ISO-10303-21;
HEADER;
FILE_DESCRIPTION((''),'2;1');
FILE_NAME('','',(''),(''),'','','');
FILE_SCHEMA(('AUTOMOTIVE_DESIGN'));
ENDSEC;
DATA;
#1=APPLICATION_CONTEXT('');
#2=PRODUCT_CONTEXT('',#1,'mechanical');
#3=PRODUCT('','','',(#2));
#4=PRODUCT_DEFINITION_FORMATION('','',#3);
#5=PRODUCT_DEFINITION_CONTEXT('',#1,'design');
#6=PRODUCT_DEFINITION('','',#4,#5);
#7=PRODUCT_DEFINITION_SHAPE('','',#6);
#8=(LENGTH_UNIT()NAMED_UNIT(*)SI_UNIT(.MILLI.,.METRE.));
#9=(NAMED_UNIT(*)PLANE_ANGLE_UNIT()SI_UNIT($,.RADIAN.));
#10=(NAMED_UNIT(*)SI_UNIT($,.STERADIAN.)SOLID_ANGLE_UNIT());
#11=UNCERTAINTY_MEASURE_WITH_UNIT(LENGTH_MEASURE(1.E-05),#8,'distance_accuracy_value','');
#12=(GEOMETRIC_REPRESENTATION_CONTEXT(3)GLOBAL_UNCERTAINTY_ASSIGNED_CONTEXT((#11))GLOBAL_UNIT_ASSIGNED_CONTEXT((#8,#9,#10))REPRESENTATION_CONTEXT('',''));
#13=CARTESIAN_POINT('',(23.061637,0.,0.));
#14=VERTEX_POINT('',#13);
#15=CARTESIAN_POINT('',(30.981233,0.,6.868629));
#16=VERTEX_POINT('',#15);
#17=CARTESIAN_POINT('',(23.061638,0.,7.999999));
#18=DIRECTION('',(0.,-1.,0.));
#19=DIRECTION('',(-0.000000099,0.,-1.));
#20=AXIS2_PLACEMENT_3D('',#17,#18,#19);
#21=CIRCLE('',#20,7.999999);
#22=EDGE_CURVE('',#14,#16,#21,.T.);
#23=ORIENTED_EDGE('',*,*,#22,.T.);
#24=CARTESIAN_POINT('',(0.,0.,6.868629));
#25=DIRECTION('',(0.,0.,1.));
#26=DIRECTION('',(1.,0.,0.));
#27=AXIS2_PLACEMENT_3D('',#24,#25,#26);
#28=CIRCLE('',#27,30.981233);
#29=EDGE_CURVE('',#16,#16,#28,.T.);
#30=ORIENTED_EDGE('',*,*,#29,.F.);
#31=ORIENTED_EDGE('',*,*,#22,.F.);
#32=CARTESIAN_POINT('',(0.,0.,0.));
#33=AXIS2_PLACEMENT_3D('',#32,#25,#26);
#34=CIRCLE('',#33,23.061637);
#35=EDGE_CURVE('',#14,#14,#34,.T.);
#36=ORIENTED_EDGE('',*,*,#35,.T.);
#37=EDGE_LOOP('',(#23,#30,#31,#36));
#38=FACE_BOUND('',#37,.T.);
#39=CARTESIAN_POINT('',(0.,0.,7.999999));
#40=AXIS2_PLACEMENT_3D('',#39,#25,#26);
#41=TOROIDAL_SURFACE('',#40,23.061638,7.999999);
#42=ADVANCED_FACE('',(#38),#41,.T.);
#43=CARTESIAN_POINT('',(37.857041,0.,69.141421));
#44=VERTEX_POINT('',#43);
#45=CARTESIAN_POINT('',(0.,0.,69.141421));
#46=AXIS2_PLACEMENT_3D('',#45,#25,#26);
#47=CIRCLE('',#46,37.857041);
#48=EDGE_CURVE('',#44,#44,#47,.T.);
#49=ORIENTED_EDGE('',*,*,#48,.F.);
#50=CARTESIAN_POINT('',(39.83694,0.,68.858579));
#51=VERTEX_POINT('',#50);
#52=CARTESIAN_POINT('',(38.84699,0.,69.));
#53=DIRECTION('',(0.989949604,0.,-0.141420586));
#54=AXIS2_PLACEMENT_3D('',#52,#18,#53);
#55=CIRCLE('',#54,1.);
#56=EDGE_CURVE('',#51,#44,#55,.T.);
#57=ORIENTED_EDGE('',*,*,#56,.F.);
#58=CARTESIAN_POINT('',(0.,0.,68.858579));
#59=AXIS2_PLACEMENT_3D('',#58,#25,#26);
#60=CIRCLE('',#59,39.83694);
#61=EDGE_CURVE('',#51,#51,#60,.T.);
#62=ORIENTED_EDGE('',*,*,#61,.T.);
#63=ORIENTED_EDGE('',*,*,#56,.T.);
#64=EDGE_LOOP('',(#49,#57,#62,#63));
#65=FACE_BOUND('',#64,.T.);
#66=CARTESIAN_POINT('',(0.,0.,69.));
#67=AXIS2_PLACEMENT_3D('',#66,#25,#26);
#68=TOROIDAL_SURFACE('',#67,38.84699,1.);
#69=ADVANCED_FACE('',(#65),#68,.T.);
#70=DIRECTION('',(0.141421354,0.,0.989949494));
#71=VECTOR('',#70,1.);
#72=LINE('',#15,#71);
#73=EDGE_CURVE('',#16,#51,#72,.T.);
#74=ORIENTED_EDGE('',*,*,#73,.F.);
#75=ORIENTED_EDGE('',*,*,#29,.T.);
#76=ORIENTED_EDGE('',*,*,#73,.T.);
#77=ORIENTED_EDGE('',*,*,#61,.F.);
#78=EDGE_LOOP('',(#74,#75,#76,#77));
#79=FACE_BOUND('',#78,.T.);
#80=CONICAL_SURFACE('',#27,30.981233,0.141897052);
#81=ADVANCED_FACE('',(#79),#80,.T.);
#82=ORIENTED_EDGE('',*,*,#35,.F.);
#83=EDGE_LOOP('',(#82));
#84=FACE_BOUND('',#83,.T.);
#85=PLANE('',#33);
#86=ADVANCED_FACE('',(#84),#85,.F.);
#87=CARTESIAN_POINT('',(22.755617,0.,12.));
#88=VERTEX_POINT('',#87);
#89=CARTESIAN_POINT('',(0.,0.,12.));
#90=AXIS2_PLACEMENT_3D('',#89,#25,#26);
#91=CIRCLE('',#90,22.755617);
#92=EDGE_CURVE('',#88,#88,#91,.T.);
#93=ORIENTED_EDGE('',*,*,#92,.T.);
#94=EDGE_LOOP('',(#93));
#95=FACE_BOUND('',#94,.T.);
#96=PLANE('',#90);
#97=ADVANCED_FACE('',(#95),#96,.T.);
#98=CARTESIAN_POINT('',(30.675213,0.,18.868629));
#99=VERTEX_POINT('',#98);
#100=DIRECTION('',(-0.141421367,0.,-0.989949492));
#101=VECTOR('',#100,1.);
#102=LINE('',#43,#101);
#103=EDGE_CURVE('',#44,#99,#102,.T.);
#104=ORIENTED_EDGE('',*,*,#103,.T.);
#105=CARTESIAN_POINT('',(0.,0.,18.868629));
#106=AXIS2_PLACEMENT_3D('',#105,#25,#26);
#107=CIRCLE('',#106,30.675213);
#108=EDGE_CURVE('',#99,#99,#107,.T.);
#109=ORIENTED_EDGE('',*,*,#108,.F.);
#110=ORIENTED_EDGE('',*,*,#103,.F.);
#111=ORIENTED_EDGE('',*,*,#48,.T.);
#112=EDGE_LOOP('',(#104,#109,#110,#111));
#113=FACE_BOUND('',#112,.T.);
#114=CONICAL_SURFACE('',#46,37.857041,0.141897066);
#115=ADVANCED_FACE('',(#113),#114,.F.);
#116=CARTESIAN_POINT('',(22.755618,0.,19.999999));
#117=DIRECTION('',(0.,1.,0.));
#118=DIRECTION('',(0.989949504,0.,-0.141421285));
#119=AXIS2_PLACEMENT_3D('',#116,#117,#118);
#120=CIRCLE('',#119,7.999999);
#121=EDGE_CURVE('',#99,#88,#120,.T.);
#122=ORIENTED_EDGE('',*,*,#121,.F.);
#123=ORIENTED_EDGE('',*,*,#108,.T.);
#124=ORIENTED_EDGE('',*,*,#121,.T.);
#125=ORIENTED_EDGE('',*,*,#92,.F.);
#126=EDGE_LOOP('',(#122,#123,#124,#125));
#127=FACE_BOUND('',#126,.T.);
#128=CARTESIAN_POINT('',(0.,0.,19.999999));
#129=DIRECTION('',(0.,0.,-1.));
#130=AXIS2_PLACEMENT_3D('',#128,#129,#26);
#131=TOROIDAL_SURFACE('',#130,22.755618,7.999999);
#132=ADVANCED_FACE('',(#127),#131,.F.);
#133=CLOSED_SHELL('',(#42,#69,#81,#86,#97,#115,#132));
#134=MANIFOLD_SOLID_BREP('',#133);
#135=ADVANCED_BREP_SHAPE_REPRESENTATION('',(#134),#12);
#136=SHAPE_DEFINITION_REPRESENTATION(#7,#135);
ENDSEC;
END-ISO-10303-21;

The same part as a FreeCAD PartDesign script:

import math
import FreeCAD as App
import Part
import Sketcher

doc = App.newDocument("Part")
body = doc.addObject("PartDesign::Body", "Body")

# Sketch on XZ plane
sketch1 = doc.addObject("Sketcher::SketchObject", "Sketch")
body.addObject(sketch1)
sketch1.AttachmentSupport = (doc.XZ_Plane, [""])
sketch1.MapMode = "FlatFace"
sketch1.addGeometry(Part.LineSegment(App.Vector(0, 12, 0), App.Vector(0, 0, 0)), False)
sketch1.addGeometry(Part.LineSegment(App.Vector(0, 0, 0), App.Vector(23.1, 0, 0)), False)
sketch1.addGeometry(Part.ArcOfCircle(Part.Circle(App.Vector(23.1, 8, 0), App.Vector(0, 0, 1), 8), math.radians(-90), math.radians(-8)), False)
sketch1.addGeometry(Part.LineSegment(App.Vector(31, 6.9, 0), App.Vector(39.8, 68.9, 0)), False)
sketch1.addGeometry(Part.ArcOfCircle(Part.Circle(App.Vector(38.8, 69, 0), App.Vector(0, 0, 1), 1), math.radians(-8), math.radians(172)), False)
sketch1.addGeometry(Part.LineSegment(App.Vector(37.9, 69.1, 0), App.Vector(30.7, 18.9, 0)), False)
sketch1.addGeometry(Part.ArcOfCircle(Part.Circle(App.Vector(22.8, 20, 0), App.Vector(0, 0, 1), 8), math.radians(-90), math.radians(-8)), False)
sketch1.addGeometry(Part.LineSegment(App.Vector(22.8, 12, 0), App.Vector(0, 12, 0)), False)
sketch1.addConstraint(Sketcher.Constraint("Coincident", 0, 2, 1, 1))
sketch1.addConstraint(Sketcher.Constraint("Tangent", 1, 2, 2, 1))
sketch1.addConstraint(Sketcher.Constraint("Tangent", 2, 2, 3, 1))
sketch1.addConstraint(Sketcher.Constraint("Tangent", 3, 2, 4, 1))
sketch1.addConstraint(Sketcher.Constraint("Tangent", 4, 2, 5, 1))
sketch1.addConstraint(Sketcher.Constraint("Tangent", 5, 2, 6, 2))
sketch1.addConstraint(Sketcher.Constraint("Tangent", 6, 1, 7, 1))
sketch1.addConstraint(Sketcher.Constraint("Coincident", 7, 2, 0, 1))
sketch1.addConstraint(Sketcher.Constraint("Vertical", 0))
sketch1.addConstraint(Sketcher.Constraint("Horizontal", 1))
sketch1.addConstraint(Sketcher.Constraint("Horizontal", 7))
sketch1.addConstraint(Sketcher.Constraint("Coincident", 0, 2, -1, 1))
sketch1.addConstraint(Sketcher.Constraint("Equal", 2, 6))
sketch1.addConstraint(Sketcher.Constraint("Parallel", 3, 5))
sketch1.addConstraint(Sketcher.Constraint("Radius", 2, 7.999999))
sketch1.addConstraint(Sketcher.Constraint("Radius", 4, 1.0))
sketch1.addConstraint(Sketcher.Constraint("DistanceY", 0, 2, 0, 1, 12.0))
sketch1.addConstraint(Sketcher.Constraint("DistanceY", -1, 1, 4, 3, 69.0))
sketch1.addConstraint(Sketcher.Constraint("Distance", 5, 50.783189))
sketch1.addConstraint(Sketcher.Constraint("DistanceX", 1, 1, 1, 2, 23.061637))
revolution = doc.addObject("PartDesign::Revolution", "Revolution")
body.addObject(revolution)
revolution.Profile = sketch1
revolution.ReferenceAxis = (sketch1, ["V_Axis"])
revolution.Angle = 360

doc.recompute()
